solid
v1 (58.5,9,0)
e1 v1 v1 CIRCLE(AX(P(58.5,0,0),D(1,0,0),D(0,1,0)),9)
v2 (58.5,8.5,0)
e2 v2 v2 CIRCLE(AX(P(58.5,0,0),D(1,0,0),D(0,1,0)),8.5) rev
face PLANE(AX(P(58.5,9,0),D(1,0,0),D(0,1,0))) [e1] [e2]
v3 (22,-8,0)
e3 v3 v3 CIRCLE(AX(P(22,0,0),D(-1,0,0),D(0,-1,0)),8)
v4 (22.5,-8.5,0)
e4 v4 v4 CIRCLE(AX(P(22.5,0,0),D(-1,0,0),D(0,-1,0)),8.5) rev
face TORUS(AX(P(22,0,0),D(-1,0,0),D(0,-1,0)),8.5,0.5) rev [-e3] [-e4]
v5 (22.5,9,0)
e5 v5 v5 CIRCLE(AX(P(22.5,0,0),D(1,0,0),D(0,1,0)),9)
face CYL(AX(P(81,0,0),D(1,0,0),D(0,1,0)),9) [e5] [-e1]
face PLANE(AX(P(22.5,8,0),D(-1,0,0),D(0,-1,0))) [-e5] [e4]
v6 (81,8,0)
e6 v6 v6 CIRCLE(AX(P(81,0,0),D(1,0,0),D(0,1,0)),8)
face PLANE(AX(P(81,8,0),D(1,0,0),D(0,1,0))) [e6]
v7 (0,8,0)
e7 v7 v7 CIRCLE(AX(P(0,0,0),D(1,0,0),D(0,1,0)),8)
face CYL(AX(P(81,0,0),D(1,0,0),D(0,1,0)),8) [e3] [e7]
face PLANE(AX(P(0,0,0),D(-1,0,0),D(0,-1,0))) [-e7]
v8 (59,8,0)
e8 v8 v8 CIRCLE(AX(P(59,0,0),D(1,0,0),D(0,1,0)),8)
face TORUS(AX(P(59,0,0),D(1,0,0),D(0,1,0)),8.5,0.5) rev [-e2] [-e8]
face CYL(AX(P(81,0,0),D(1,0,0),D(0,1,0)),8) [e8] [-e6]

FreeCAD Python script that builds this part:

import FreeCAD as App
import Part
import Sketcher
Q = App.Units.Quantity


def edges_at(feature, points):
    """Names of the edges that pass closest to the given points."""
    edges = feature.Shape.Edges
    near = lambda p: min(range(len(edges)), key=lambda i: edges[i].distToShape(Part.Vertex(*p))[0])
    return sorted({f"Edge{near(p) + 1}" for p in points})

doc = App.newDocument("Part")
body = doc.addObject("PartDesign::Body", "Body")

# Sketch on XY plane
sketch1 = body.newObject("Sketcher::SketchObject", "Sketch")
sketch1.AttachmentSupport = (doc.getObject("XY_Plane"), [""])
sketch1.MapMode = "FlatFace"
sketch1.addGeometry(Part.LineSegment(App.Vector(0, 8, 0), App.Vector(0, 0, 0)), False)
sketch1.addGeometry(Part.LineSegment(App.Vector(0, 0, 0), App.Vector(81, 0, 0)), False)
sketch1.addGeometry(Part.LineSegment(App.Vector(81, 0, 0), App.Vector(81, 8, 0)), False)
sketch1.addGeometry(Part.LineSegment(App.Vector(81, 8, 0), App.Vector(58.5, 8, 0)), False)
sketch1.addGeometry(Part.LineSegment(App.Vector(58.5, 8, 0), App.Vector(58.5, 9, 0)), False)
sketch1.addGeometry(Part.LineSegment(App.Vector(58.5, 9, 0), App.Vector(22.5, 9, 0)), False)
sketch1.addGeometry(Part.LineSegment(App.Vector(22.5, 9, 0), App.Vector(22.5, 8, 0)), False)
sketch1.addGeometry(Part.LineSegment(App.Vector(22.5, 8, 0), App.Vector(0, 8, 0)), False)
sketch1.addConstraint(Sketcher.Constraint("Coincident", 0, 2, 1, 1))
sketch1.addConstraint(Sketcher.Constraint("Coincident", 1, 2, 2, 1))
sketch1.addConstraint(Sketcher.Constraint("Coincident", 2, 2, 3, 1))
sketch1.addConstraint(Sketcher.Constraint("Coincident", 3, 2, 4, 1))
sketch1.addConstraint(Sketcher.Constraint("Coincident", 4, 2, 5, 1))
sketch1.addConstraint(Sketcher.Constraint("Coincident", 5, 2, 6, 1))
sketch1.addConstraint(Sketcher.Constraint("Coincident", 6, 2, 7, 1))
sketch1.addConstraint(Sketcher.Constraint("Coincident", 7, 2, 0, 1))
sketch1.addConstraint(Sketcher.Constraint("Vertical", 0))
sketch1.addConstraint(Sketcher.Constraint("Horizontal", 1))
sketch1.addConstraint(Sketcher.Constraint("Vertical", 2))
sketch1.addConstraint(Sketcher.Constraint("Horizontal", 3))
sketch1.addConstraint(Sketcher.Constraint("Vertical", 4))
sketch1.addConstraint(Sketcher.Constraint("Horizontal", 5))
sketch1.addConstraint(Sketcher.Constraint("Vertical", 6))
sketch1.addConstraint(Sketcher.Constraint("Horizontal", 7))
sketch1.addConstraint(Sketcher.Constraint("Coincident", 0, 2, -1, 1))
sketch1.addConstraint(Sketcher.Constraint("Horizontal", 3, 2, 6, 2))
sketch1.addConstraint(Sketcher.Constraint("Equal", 3, 7))
sketch1.addConstraint(Sketcher.Constraint("DistanceX", 1, 1, 1, 2, Q("81 mm")))
sketch1.addConstraint(Sketcher.Constraint("DistanceX", 5, 2, 5, 1, Q("36 mm")))
sketch1.addConstraint(Sketcher.Constraint("DistanceY", 0, 2, 0, 1, Q("8 mm")))
sketch1.addConstraint(Sketcher.Constraint("DistanceY", 4, 1, 4, 2, Q("1 mm")))
revolution = body.newObject("PartDesign::Revolution", "Revolution")
revolution.Profile = sketch1
revolution.ReferenceAxis = (sketch1, ["H_Axis"])
revolution.Angle = 360
doc.recompute()

fillet = body.newObject("PartDesign::Fillet", "Fillet")
fillet.Base = (revolution, edges_at(revolution, [(58.5, -8, 0), (22.5, -8, 0)]))
fillet.Radius = 0.5

doc.recompute()
